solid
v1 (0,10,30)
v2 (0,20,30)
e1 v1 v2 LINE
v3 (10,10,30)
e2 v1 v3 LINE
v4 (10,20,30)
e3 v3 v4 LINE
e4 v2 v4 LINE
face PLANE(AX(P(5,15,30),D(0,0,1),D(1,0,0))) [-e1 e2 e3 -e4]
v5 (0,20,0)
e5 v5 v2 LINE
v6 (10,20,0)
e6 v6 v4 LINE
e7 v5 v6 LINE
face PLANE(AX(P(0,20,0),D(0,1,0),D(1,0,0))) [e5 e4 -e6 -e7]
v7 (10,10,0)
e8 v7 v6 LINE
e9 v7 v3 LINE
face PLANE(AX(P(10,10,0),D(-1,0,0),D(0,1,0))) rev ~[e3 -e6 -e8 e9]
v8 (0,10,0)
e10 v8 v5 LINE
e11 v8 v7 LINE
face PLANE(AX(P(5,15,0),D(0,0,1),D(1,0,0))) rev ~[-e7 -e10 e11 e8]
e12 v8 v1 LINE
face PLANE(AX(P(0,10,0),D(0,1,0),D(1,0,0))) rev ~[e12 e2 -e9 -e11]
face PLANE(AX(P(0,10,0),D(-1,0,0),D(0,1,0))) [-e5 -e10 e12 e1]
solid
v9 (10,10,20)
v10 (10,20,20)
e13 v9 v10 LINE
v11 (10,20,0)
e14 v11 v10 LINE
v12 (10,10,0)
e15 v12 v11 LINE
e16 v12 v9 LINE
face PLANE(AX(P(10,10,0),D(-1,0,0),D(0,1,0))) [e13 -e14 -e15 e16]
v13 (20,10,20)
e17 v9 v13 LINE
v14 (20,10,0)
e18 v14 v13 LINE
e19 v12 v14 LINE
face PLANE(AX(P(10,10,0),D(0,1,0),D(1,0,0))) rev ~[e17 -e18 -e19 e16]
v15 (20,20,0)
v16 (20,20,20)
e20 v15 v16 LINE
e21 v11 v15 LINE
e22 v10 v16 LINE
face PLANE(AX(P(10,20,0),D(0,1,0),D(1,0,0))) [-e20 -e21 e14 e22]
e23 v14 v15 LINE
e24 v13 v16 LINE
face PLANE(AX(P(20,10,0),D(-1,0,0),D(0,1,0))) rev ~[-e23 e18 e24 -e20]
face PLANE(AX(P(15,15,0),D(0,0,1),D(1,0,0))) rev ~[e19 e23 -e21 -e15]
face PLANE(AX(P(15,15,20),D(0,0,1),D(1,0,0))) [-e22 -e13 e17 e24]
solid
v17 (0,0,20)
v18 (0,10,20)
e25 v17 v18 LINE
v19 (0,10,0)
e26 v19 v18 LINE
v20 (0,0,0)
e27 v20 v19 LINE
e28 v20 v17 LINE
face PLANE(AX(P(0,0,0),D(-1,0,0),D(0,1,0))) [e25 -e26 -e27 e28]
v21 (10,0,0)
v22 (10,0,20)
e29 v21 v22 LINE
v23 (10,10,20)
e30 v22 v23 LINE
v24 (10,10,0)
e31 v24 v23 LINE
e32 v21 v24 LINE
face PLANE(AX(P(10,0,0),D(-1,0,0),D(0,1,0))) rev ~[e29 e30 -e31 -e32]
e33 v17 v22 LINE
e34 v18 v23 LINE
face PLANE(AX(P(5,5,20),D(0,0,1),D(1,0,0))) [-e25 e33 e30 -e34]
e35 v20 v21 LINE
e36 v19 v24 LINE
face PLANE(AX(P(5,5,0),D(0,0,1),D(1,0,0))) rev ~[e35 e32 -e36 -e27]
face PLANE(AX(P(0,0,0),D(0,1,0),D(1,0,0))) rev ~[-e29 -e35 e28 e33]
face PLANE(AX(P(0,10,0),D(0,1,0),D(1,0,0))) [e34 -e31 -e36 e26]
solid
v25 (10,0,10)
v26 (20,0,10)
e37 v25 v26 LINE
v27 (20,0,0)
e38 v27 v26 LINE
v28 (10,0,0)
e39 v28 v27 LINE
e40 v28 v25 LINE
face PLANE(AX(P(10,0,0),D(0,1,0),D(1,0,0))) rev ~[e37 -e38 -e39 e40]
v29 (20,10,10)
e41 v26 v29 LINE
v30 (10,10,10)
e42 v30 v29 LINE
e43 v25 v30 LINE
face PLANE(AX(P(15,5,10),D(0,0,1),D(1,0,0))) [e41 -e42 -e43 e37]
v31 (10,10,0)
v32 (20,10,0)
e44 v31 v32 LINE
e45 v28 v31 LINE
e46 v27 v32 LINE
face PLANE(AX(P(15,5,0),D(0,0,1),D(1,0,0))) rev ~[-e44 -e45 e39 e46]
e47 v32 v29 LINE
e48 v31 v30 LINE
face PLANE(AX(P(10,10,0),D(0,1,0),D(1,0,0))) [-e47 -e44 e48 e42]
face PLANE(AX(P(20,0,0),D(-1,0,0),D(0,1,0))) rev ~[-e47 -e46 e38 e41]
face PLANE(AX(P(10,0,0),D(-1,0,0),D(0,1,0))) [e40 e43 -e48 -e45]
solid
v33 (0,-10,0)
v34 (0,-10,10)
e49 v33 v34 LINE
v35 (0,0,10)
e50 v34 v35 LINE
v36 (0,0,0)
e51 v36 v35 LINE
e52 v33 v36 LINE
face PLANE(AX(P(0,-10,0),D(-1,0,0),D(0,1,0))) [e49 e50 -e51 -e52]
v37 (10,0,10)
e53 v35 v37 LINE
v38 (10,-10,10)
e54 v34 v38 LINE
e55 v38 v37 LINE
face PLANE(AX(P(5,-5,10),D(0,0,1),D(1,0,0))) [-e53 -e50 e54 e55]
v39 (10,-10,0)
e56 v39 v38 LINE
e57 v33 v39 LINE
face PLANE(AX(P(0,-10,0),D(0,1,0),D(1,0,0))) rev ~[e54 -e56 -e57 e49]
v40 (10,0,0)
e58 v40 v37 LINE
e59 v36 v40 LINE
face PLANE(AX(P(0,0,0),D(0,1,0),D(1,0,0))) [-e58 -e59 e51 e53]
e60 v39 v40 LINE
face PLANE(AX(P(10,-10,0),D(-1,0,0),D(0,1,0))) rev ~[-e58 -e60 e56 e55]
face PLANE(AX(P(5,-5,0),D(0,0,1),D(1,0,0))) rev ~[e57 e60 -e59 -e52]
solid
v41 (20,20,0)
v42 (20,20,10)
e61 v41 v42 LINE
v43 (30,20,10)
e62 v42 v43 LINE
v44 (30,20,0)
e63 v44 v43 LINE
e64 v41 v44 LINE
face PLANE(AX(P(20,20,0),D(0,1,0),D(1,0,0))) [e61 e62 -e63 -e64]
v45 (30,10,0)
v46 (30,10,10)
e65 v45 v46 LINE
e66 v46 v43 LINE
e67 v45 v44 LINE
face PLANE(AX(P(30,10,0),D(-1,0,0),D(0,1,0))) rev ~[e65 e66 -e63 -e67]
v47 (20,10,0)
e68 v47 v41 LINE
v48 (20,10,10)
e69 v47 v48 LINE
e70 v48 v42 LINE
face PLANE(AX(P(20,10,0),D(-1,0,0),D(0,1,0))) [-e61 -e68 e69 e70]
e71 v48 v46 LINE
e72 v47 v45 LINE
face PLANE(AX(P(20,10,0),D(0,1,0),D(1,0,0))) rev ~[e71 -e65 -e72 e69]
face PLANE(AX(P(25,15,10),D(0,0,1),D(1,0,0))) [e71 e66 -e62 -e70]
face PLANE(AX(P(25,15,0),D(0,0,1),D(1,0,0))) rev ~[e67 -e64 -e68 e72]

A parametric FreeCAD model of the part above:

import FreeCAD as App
import Part
import Sketcher
Q = App.Units.Quantity


def add_polygon(sketch, points):
    """Adds a closed chain of lines whose ends are joined by coincident constraints."""
    first, n = sketch.GeometryCount, len(points)
    for a, b in zip(points, points[1:] + points[:1]):
        sketch.addGeometry(Part.LineSegment(App.Vector(*a, 0), App.Vector(*b, 0)), False)
    for i in range(n):
        sketch.addConstraint(Sketcher.Constraint("Coincident", first + i, 2, first + (i + 1) % n, 1))

doc = App.newDocument("Part")
params = doc.addObject("Spreadsheet::Sheet", "Params")
for row, (alias, value) in enumerate([
    ("sketch1_width", "10 mm"),
    ("pad1_length", "20 mm"),
    ("sketch2_width", "10 mm"),
    ("pad2_length", "10 mm"),
    ("sketch3_width", "10 mm"),
    ("pad3_length", "10 mm"),
    ("sketch4_width", "10 mm"),
    ("pad4_length", "20 mm"),
    ("sketch5_width", "10 mm"),
    ("pad5_length", "10 mm"),
    ("sketch6_width", "10 mm"),
    ("pad6_length", "30 mm"),
], start=1):
    params.set(f"A{row}", alias)
    params.set(f"B{row}", "=" + value)
    params.setAlias(f"B{row}", alias)

body = doc.addObject("PartDesign::Body", "Body")

sketch1 = body.newObject("Sketcher::SketchObject", "Sketch")
sketch1.AttachmentSupport = (doc.getObject("XY_Plane"), [""])
sketch1.MapMode = "FlatFace"
add_polygon(sketch1, [(0, 10), (0, 0), (10, 0), (10, 10)])
sketch1.addConstraint([
    Sketcher.Constraint("Vertical", 0),
    Sketcher.Constraint("Horizontal", 1),
    Sketcher.Constraint("Vertical", 2),
    Sketcher.Constraint("Horizontal", 3),
    Sketcher.Constraint("Coincident", 0, 2, -1, 1),
    Sketcher.Constraint("Equal", 3, 0),
    Sketcher.Constraint("DistanceX", 1, 1, 1, 2, Q("10 mm")),
])
sketch1.setExpression("Constraints[10]", "Params.sketch1_width")
pad1 = body.newObject("PartDesign::Pad", "Pad")
pad1.Profile = sketch1
pad1.setExpression("Length", "Params.pad1_length")
body2 = doc.addObject("PartDesign::Body", "Body001")

sketch2 = body2.newObject("Sketcher::SketchObject", "Sketch001")
sketch2.AttachmentSupport = (doc.getObject("XY_Plane001"), [""])
sketch2.MapMode = "FlatFace"
add_polygon(sketch2, [(10, 10), (10, 0), (20, 0), (20, 10)])
sketch2.addConstraint([
    Sketcher.Constraint("Vertical", 0),
    Sketcher.Constraint("Horizontal", 1),
    Sketcher.Constraint("Vertical", 2),
    Sketcher.Constraint("Horizontal", 3),
    Sketcher.Constraint("PointOnObject", 0, 2, -1),
    Sketcher.Constraint("Equal", 3, 0),
    Sketcher.Constraint("DistanceX", 1, 1, 1, 2, Q("10 mm")),
    Sketcher.Constraint("DistanceX", -1, 1, 0, 2, Q("10 mm")),
])
sketch2.setExpression("Constraints[10]", "Params.sketch2_width")
pad2 = body2.newObject("PartDesign::Pad", "Pad001")
pad2.Profile = sketch2
pad2.setExpression("Length", "Params.pad2_length")
body3 = doc.addObject("PartDesign::Body", "Body002")

sketch3 = body3.newObject("Sketcher::SketchObject", "Sketch002")
sketch3.AttachmentSupport = (doc.getObject("XY_Plane002"), [""])
sketch3.MapMode = "FlatFace"
add_polygon(sketch3, [(0, 0), (0, -10), (10, -10), (10, 0)])
sketch3.addConstraint([
    Sketcher.Constraint("Vertical", 0),
    Sketcher.Constraint("Horizontal", 1),
    Sketcher.Constraint("Vertical", 2),
    Sketcher.Constraint("Horizontal", 3),
    Sketcher.Constraint("Coincident", 3, 2, -1, 1),
    Sketcher.Constraint("Equal", 3, 0),
    Sketcher.Constraint("DistanceX", 1, 1, 1, 2, Q("10 mm")),
])
sketch3.setExpression("Constraints[10]", "Params.sketch3_width")
pad3 = body3.newObject("PartDesign::Pad", "Pad002")
pad3.Profile = sketch3
pad3.setExpression("Length", "Params.pad3_length")
body4 = doc.addObject("PartDesign::Body", "Body003")

sketch4 = body4.newObject("Sketcher::SketchObject", "Sketch003")
sketch4.AttachmentSupport = (doc.getObject("XY_Plane003"), [""])
sketch4.MapMode = "FlatFace"
add_polygon(sketch4, [(10, 20), (10, 10), (20, 10), (20, 20)])
sketch4.addConstraint([
    Sketcher.Constraint("Vertical", 0),
    Sketcher.Constraint("Horizontal", 1),
    Sketcher.Constraint("Vertical", 2),
    Sketcher.Constraint("Horizontal", 3),
    Sketcher.Constraint("Equal", 3, 0),
    Sketcher.Constraint("DistanceX", 1, 1, 1, 2, Q("10 mm")),
    Sketcher.Constraint("DistanceX", -1, 1, 0, 2, Q("10 mm")),
    Sketcher.Constraint("DistanceY", -1, 1, 0, 2, Q("10 mm")),
])
sketch4.setExpression("Constraints[9]", "Params.sketch4_width")
pad4 = body4.newObject("PartDesign::Pad", "Pad003")
pad4.Profile = sketch4
pad4.setExpression("Length", "Params.pad4_length")
body5 = doc.addObject("PartDesign::Body", "Body004")

sketch5 = body5.newObject("Sketcher::SketchObject", "Sketch004")
sketch5.AttachmentSupport = (doc.getObject("XY_Plane004"), [""])
sketch5.MapMode = "FlatFace"
add_polygon(sketch5, [(20, 20), (20, 10), (30, 10), (30, 20)])
sketch5.addConstraint([
    Sketcher.Constraint("Vertical", 0),
    Sketcher.Constraint("Horizontal", 1),
    Sketcher.Constraint("Vertical", 2),
    Sketcher.Constraint("Horizontal", 3),
    Sketcher.Constraint("Equal", 3, 0),
    Sketcher.Constraint("DistanceX", 1, 1, 1, 2, Q("10 mm")),
    Sketcher.Constraint("DistanceX", -1, 1, 0, 2, Q("20 mm")),
    Sketcher.Constraint("DistanceY", -1, 1, 0, 2, Q("10 mm")),
])
sketch5.setExpression("Constraints[9]", "Params.sketch5_width")
pad5 = body5.newObject("PartDesign::Pad", "Pad004")
pad5.Profile = sketch5
pad5.setExpression("Length", "Params.pad5_length")
body6 = doc.addObject("PartDesign::Body", "Body005")

sketch6 = body6.newObject("Sketcher::SketchObject", "Sketch005")
sketch6.AttachmentSupport = (doc.getObject("XY_Plane005"), [""])
sketch6.MapMode = "FlatFace"
add_polygon(sketch6, [(0, 20), (0, 10), (10, 10), (10, 20)])
sketch6.addConstraint([
    Sketcher.Constraint("Vertical", 0),
    Sketcher.Constraint("Horizontal", 1),
    Sketcher.Constraint("Vertical", 2),
    Sketcher.Constraint("Horizontal", 3),
    Sketcher.Constraint("PointOnObject", 0, 2, -2),
    Sketcher.Constraint("Equal", 3, 0),
    Sketcher.Constraint("DistanceX", 1, 1, 1, 2, Q("10 mm")),
    Sketcher.Constraint("DistanceY", -1, 1, 0, 2, Q("10 mm")),
])
sketch6.setExpression("Constraints[10]", "Params.sketch6_width")
pad6 = body6.newObject("PartDesign::Pad", "Pad005")
pad6.Profile = sketch6
pad6.setExpression("Length", "Params.pad6_length")

doc.recompute()
